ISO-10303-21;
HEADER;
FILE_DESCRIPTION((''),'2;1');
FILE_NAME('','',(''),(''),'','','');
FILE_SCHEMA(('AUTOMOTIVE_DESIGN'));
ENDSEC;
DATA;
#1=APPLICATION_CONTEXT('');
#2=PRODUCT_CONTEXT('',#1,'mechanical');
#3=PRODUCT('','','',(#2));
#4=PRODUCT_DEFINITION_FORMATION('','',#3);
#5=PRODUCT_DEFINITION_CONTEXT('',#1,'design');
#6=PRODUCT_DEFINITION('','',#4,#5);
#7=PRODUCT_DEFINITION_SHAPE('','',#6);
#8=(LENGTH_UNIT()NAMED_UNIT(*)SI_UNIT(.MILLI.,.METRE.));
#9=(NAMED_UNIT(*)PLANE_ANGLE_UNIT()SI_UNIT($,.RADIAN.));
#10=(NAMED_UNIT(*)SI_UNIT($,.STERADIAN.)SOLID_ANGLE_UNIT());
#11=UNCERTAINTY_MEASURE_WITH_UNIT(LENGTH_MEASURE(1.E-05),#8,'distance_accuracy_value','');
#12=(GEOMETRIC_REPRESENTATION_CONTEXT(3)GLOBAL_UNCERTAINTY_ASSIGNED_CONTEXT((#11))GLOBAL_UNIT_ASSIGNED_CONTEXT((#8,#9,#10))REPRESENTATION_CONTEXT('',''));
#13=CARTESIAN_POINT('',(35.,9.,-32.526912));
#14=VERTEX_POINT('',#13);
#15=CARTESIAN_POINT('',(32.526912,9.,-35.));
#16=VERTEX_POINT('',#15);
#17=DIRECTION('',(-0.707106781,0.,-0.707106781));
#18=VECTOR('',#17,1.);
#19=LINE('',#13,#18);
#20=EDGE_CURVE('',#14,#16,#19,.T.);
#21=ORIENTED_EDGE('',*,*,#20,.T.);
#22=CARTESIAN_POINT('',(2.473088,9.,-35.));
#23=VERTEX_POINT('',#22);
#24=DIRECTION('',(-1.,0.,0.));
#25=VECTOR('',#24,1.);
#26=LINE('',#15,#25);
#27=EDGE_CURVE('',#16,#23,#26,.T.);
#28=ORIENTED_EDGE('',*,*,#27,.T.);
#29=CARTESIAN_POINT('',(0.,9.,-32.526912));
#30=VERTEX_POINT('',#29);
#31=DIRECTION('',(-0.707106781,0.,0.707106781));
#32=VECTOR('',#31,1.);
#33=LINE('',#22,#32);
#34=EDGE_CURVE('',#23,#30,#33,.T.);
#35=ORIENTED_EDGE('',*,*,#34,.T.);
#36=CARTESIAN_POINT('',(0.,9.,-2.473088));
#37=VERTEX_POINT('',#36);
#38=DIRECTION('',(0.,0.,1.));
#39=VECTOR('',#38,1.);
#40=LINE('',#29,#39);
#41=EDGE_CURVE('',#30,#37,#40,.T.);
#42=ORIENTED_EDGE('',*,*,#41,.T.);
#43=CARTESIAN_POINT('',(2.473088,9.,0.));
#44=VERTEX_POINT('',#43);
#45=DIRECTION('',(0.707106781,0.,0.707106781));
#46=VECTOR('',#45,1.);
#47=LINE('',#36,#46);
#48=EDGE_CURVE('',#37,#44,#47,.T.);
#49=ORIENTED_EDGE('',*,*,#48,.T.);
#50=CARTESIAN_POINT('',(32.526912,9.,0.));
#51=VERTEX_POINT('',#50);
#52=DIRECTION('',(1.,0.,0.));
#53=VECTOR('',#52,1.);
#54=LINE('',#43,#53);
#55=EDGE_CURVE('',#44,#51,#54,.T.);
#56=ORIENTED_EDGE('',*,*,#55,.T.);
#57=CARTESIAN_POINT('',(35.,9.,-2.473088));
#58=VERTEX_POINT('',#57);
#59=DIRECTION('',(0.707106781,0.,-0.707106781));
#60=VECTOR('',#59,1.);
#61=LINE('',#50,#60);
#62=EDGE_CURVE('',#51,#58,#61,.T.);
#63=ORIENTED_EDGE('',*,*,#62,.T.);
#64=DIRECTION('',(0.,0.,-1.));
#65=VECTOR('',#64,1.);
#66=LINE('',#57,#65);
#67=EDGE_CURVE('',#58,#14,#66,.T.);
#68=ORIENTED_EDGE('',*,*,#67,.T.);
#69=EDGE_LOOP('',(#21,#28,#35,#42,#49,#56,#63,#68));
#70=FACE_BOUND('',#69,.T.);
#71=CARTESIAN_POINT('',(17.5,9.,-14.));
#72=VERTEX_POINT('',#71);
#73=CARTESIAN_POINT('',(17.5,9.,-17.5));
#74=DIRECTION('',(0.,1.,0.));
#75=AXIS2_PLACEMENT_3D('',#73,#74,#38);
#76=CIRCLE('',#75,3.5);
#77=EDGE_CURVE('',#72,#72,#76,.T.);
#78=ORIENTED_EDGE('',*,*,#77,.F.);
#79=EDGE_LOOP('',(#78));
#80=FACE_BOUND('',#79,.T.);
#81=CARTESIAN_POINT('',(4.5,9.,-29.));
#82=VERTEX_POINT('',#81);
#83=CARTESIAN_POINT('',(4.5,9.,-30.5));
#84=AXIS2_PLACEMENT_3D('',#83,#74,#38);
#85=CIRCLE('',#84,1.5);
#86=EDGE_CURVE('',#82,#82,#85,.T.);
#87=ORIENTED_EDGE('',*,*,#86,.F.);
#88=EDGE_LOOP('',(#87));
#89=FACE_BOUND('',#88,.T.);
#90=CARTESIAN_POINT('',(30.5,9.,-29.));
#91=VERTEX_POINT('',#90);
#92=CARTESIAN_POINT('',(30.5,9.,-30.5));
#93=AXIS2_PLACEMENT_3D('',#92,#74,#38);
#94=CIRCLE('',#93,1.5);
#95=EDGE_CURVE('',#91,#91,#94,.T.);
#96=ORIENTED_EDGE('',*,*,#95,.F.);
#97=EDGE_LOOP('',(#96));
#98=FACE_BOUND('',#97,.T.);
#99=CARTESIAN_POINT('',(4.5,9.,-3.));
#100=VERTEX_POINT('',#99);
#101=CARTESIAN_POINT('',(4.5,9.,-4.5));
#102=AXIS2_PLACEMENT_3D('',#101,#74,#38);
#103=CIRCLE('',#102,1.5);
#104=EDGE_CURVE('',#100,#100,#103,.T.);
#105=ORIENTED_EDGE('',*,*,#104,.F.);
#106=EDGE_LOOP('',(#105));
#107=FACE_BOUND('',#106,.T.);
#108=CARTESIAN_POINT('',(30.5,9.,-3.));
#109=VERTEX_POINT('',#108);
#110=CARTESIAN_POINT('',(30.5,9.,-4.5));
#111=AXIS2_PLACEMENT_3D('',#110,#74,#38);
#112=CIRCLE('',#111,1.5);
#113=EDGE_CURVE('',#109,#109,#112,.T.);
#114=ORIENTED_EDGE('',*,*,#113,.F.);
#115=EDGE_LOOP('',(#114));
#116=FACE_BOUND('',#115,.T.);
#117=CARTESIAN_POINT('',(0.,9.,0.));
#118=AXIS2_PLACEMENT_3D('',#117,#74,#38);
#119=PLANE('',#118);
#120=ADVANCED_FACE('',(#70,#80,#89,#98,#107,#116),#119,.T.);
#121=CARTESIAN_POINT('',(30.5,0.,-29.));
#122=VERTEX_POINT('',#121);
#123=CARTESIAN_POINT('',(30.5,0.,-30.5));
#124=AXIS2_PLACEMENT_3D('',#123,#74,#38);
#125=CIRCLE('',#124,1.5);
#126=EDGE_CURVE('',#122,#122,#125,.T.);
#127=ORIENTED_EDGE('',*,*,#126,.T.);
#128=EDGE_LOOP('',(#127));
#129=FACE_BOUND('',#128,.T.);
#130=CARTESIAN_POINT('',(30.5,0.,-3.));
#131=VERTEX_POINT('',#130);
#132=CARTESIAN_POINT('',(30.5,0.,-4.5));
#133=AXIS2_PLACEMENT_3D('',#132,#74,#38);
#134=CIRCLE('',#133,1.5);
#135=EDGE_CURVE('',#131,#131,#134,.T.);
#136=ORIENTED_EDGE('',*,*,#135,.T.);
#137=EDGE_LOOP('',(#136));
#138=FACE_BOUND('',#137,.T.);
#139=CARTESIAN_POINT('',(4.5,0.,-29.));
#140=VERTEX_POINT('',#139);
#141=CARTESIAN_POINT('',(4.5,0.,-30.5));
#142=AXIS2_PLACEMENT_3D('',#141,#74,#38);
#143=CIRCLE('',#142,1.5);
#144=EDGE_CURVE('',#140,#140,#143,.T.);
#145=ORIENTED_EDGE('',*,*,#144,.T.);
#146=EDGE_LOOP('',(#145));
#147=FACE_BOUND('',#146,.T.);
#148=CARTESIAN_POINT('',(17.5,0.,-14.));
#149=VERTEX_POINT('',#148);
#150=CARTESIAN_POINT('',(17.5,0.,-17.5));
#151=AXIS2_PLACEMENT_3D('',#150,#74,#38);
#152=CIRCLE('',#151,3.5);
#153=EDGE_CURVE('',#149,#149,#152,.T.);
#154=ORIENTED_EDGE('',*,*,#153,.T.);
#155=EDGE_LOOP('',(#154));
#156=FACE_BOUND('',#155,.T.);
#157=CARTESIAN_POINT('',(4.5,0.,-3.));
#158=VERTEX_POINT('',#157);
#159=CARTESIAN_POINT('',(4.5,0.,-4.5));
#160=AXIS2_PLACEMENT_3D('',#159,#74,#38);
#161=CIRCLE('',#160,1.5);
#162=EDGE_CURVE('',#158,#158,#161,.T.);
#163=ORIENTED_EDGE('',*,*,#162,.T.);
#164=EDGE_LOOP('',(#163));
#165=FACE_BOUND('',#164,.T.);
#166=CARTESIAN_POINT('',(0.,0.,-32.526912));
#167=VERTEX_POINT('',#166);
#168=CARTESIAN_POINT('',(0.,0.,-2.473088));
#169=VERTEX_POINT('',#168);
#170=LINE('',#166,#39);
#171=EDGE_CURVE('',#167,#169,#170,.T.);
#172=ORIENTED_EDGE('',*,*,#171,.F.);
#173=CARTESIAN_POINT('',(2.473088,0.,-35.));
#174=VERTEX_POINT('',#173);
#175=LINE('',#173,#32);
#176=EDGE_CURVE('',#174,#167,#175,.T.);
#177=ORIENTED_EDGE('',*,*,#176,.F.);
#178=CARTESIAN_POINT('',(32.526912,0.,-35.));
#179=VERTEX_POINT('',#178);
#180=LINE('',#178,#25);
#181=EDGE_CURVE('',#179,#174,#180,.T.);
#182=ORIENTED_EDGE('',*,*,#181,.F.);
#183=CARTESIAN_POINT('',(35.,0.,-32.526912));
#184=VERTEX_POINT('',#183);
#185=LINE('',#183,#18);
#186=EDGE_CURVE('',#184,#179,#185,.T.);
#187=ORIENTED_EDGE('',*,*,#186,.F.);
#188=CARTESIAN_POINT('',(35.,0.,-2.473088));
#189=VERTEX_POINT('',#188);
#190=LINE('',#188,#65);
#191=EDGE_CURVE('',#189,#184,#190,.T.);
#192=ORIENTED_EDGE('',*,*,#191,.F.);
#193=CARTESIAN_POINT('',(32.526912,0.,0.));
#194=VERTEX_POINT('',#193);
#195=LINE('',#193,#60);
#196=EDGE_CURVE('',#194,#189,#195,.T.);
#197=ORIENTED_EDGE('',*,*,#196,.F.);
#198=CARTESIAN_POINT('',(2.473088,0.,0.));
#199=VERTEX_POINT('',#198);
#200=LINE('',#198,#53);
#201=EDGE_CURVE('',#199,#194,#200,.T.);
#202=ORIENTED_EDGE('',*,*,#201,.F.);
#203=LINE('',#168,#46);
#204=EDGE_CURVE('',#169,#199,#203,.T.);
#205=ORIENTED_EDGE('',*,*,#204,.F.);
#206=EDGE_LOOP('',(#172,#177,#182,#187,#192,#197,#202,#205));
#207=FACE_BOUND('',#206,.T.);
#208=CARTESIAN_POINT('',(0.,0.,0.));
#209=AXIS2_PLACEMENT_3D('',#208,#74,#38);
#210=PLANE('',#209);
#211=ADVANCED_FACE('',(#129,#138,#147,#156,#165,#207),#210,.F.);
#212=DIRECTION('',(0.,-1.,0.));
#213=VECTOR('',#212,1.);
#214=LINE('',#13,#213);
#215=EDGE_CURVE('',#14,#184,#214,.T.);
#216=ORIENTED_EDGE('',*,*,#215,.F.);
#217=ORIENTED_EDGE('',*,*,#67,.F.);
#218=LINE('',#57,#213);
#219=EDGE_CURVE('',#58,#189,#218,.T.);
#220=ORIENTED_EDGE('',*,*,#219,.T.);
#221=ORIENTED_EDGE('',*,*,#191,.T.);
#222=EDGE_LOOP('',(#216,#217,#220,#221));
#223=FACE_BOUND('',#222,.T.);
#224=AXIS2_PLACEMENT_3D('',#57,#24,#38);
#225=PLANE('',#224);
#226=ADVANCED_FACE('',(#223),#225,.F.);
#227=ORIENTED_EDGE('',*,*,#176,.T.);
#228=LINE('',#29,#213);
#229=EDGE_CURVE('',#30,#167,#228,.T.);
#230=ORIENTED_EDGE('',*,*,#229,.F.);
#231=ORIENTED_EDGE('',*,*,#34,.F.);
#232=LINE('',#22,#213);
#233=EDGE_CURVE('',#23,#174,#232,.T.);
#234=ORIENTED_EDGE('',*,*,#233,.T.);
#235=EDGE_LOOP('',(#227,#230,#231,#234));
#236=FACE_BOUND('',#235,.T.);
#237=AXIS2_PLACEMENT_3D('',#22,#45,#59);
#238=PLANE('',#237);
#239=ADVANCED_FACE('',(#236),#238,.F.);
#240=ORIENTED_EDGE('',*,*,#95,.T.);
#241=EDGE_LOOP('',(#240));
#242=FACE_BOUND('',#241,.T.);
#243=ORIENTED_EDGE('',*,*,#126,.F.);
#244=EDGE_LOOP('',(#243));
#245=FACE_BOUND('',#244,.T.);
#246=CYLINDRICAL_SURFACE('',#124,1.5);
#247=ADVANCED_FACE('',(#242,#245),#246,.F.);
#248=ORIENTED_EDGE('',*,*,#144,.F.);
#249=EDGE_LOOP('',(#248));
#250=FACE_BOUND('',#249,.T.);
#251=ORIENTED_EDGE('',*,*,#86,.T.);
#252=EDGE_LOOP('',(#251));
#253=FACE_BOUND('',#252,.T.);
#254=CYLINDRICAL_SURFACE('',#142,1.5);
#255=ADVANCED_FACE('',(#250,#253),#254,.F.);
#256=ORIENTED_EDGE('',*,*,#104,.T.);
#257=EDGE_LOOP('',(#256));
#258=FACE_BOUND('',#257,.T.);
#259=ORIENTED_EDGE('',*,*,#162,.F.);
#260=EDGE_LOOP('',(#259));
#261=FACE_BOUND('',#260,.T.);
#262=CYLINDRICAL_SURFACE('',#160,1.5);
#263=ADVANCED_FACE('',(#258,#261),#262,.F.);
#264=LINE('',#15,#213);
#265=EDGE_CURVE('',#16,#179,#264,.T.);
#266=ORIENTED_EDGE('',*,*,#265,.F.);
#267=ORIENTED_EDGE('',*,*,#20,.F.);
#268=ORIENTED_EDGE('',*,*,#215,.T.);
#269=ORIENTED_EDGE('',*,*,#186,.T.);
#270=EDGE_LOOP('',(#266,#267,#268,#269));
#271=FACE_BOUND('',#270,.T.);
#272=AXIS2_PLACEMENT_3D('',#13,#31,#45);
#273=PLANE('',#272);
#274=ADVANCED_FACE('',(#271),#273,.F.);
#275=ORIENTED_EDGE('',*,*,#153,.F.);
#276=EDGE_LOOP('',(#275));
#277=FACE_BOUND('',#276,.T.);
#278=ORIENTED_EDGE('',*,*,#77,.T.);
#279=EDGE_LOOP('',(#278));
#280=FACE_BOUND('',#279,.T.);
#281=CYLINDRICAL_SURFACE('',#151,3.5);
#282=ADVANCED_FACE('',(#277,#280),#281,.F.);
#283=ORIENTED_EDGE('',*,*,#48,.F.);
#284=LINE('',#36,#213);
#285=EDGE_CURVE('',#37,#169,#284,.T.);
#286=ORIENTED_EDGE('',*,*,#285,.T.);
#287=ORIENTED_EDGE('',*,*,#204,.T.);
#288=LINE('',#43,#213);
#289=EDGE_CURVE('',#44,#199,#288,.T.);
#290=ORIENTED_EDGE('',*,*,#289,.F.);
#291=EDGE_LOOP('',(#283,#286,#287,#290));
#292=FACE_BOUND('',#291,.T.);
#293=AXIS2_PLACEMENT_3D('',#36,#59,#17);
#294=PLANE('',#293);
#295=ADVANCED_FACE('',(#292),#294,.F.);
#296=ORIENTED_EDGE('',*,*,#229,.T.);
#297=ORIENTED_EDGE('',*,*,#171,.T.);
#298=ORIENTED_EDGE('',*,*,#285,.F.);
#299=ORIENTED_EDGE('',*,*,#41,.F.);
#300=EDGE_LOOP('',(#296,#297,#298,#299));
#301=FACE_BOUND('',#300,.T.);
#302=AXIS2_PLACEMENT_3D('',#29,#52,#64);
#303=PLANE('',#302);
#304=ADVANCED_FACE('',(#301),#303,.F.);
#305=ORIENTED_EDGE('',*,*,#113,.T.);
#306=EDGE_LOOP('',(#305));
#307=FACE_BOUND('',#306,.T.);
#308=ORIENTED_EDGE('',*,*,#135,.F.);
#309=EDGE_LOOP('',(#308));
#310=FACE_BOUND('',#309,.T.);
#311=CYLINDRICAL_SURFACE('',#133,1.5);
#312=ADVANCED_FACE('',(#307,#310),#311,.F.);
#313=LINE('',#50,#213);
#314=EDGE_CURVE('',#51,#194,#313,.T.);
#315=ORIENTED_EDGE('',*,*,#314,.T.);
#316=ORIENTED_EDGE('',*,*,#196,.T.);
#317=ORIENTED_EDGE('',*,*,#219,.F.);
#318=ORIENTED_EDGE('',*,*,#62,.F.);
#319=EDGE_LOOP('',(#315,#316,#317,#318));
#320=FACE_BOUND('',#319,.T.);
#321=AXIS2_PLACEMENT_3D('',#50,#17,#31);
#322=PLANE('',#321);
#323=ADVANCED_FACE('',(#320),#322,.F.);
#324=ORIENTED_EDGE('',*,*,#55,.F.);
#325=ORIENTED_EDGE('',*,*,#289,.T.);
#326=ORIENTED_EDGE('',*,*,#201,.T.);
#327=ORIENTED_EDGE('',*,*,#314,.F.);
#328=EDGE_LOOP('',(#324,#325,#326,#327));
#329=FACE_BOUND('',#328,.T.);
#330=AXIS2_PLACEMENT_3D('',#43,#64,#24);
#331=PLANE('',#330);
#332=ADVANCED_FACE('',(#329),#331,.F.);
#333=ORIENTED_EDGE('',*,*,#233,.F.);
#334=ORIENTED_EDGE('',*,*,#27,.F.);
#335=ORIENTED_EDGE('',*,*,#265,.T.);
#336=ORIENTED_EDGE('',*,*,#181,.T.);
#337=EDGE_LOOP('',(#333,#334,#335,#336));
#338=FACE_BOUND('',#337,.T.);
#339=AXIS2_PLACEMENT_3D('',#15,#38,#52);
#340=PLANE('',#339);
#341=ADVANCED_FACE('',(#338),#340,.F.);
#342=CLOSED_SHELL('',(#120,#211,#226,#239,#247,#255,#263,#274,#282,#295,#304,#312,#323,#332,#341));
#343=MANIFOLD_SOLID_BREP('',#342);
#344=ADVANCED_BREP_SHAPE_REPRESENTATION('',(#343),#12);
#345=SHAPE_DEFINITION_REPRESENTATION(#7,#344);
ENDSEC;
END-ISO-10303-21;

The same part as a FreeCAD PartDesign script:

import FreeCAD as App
import Part
import Sketcher

V = App.Vector
Q = App.Units.Quantity

doc = App.newDocument("Part")
body = doc.addObject("PartDesign::Body", "Body")

sketch1 = body.newObject("Sketcher::SketchObject", "Sketch")
sketch1.AttachmentSupport = (doc.getObject("XZ_Plane"), [""])
sketch1.MapMode = "FlatFace"
sketch1.addGeometry([
    Part.LineSegment(V(0, -2.5, 0), V(2.5, 0, 0)),
    Part.LineSegment(V(2.5, 0, 0), V(32.5, 0, 0)),
    Part.LineSegment(V(32.5, 0, 0), V(35, -2.5, 0)),
    Part.LineSegment(V(35, -2.5, 0), V(35, -32.5, 0)),
    Part.LineSegment(V(35, -32.5, 0), V(32.5, -35, 0)),
    Part.LineSegment(V(32.5, -35, 0), V(2.5, -35, 0)),
    Part.LineSegment(V(2.5, -35, 0), V(0, -32.5, 0)),
    Part.LineSegment(V(0, -32.5, 0), V(0, -2.5, 0)),
], False)
sketch1.addConstraint([
    Sketcher.Constraint("Coincident", 0, 2, 1, 1),
    Sketcher.Constraint("Coincident", 1, 2, 2, 1),
    Sketcher.Constraint("Coincident", 2, 2, 3, 1),
    Sketcher.Constraint("Coincident", 3, 2, 4, 1),
    Sketcher.Constraint("Coincident", 4, 2, 5, 1),
    Sketcher.Constraint("Coincident", 5, 2, 6, 1),
    Sketcher.Constraint("Coincident", 6, 2, 7, 1),
    Sketcher.Constraint("Coincident", 7, 2, 0, 1),
    Sketcher.Constraint("Horizontal", 1),
    Sketcher.Constraint("Vertical", 3),
    Sketcher.Constraint("Horizontal", 5),
    Sketcher.Constraint("Vertical", 7),
    Sketcher.Constraint("PointOnObject", 0, 2, -1),
    Sketcher.Constraint("PointOnObject", 6, 2, -2),
    Sketcher.Constraint("Perpendicular", 0, 2),
    Sketcher.Constraint("Perpendicular", 2, 4),
    Sketcher.Constraint("Perpendicular", 4, 6),
    Sketcher.Constraint("Horizontal", 3, 2, 6, 2),
    Sketcher.Constraint("Horizontal", 2, 2, 7, 2),
    Sketcher.Constraint("Vertical", 1, 2, 4, 2),
    Sketcher.Constraint("Vertical", 0, 2, 5, 2),
    Sketcher.Constraint("Equal", 5, 3),
    Sketcher.Constraint("DistanceX", -1, 1, 2, 2, Q("35 mm")),
    Sketcher.Constraint("DistanceX", 1, 1, 1, 2, Q("30.053824 mm")),
])
pad1 = body.newObject("PartDesign::Pad", "Pad")
pad1.Profile = sketch1
pad1.Length = 9
pad1.Reversed = True

sketch2 = body.newObject("Sketcher::SketchObject", "Sketch001")
sketch2.AttachmentSupport = (doc.getObject("XZ_Plane"), [""])
sketch2.MapMode = "FlatFace"
sketch2.AttachmentOffset = App.Placement(V(0, 0, -9), App.Rotation())
sketch2.addGeometry(Part.Circle(V(17.5, -17.5, 0), V(0, 0, 1), 3.5), False)
sketch2.addConstraint([
    Sketcher.Constraint("Diameter", 0, Q("7 mm")),
    Sketcher.Constraint("DistanceX", -1, 1, 0, 3, Q("17.5 mm")),
    Sketcher.Constraint("DistanceY", 0, 3, -1, 1, Q("17.5 mm")),
])
pocket1 = body.newObject("PartDesign::Pocket", "Pocket")
pocket1.Profile = sketch2
pocket1.Type = "ThroughAll"
pocket1.Reversed = True

sketch3 = body.newObject("Sketcher::SketchObject", "Sketch002")
sketch3.AttachmentSupport = (doc.getObject("XZ_Plane"), [""])
sketch3.MapMode = "FlatFace"
sketch3.AttachmentOffset = App.Placement(V(0, 0, -9), App.Rotation())
sketch3.addGeometry([
    Part.Circle(V(4.5, -30.5, 0), V(0, 0, 1), 1.5),
    Part.Circle(V(30.5, -30.5, 0), V(0, 0, 1), 1.5),
    Part.Circle(V(30.5, -4.5, 0), V(0, 0, 1), 1.5),
    Part.Circle(V(4.5, -4.5, 0), V(0, 0, 1), 1.5),
], False)
sketch3.addConstraint([
    Sketcher.Constraint("Equal", 0, 1),
    Sketcher.Constraint("Equal", 1, 2),
    Sketcher.Constraint("Equal", 2, 3),
    Sketcher.Constraint("Horizontal", 0, 3, 1, 3),
    Sketcher.Constraint("Horizontal", 2, 3, 3, 3),
    Sketcher.Constraint("Vertical", 1, 3, 2, 3),
    Sketcher.Constraint("Vertical", 0, 3, 3, 3),
    Sketcher.Constraint("Diameter", 0, Q("3 mm")),
    Sketcher.Constraint("DistanceX", 0, 3, 1, 3, Q("26 mm")),
    Sketcher.Constraint("DistanceY", 1, 3, 2, 3, Q("26 mm")),
    Sketcher.Constraint("DistanceX", -1, 1, 0, 3, Q("4.5 mm")),
    Sketcher.Constraint("DistanceY", 0, 3, -1, 1, Q("30.5 mm")),
])
pocket2 = body.newObject("PartDesign::Pocket", "Pocket001")
pocket2.Profile = sketch3
pocket2.Type = "ThroughAll"
pocket2.Reversed = True

doc.recompute()
